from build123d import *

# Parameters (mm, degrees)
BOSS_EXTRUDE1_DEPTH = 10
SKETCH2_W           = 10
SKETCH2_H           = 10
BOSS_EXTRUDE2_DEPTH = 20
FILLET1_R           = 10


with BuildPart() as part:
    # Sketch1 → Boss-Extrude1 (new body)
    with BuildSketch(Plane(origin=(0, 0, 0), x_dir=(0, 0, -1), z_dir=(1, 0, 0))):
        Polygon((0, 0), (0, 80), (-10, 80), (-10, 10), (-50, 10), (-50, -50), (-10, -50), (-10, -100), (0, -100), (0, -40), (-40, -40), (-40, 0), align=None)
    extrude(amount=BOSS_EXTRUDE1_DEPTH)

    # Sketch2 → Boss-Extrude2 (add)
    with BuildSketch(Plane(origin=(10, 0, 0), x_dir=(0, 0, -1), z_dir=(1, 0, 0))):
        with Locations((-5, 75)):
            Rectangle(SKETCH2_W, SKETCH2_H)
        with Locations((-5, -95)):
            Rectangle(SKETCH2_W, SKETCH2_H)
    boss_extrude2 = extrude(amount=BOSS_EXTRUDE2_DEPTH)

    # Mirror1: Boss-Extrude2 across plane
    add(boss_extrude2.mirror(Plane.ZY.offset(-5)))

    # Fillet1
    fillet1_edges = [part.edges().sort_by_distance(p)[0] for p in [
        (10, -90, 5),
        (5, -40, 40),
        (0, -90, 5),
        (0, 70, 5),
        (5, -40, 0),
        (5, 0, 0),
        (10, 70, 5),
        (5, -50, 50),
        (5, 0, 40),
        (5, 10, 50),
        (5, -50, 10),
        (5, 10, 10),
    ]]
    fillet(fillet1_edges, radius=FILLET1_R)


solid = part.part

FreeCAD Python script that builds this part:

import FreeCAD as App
import Part
import Sketcher
from FreeCAD import Vector


def edges_at(feature, points):
    """Names of the edges that pass closest to the given points."""
    edges = feature.Shape.Edges
    near = lambda p: min(range(len(edges)), key=lambda i: edges[i].distToShape(Part.Vertex(*p))[0])
    return sorted({f"Edge{near(p) + 1}" for p in points})


def add_polygon(sketch, points):
    """Adds a closed chain of lines whose ends are joined by coincident constraints."""
    first, n = sketch.GeometryCount, len(points)
    for a, b in zip(points, points[1:] + points[:1]):
        sketch.addGeometry(Part.LineSegment(App.Vector(*a, 0), App.Vector(*b, 0)), False)
    for i in range(n):
        sketch.addConstraint(Sketcher.Constraint("Coincident", first + i, 2, first + (i + 1) % n, 1))

doc = App.newDocument("Part")
params = doc.addObject("Spreadsheet::Sheet", "Params")
for row, (alias, value) in enumerate([
    ("sketch1_width", "80 mm"),
    ("sketch1_width2", "70 mm"),
    ("sketch1_width3", "60 mm"),
    ("sketch1_width4", "50 mm"),
    ("sketch1_height", "10 mm"),
    ("pad1_length", "10 mm"),
    ("sketch2_width", "10 mm"),
    ("pad2_length", "20 mm"),
    ("fillet_radius", "10 mm"),
], start=1):
    params.set(f"A{row}", alias)
    params.set(f"B{row}", "=" + value)
    params.setAlias(f"B{row}", alias)

body = doc.addObject("PartDesign::Body", "Body")

sketch1 = body.newObject("Sketcher::SketchObject", "Sketch")
sketch1.AttachmentSupport = (doc.getObject("YZ_Plane"), [""])
sketch1.MapMode = "FlatFace"
add_polygon(sketch1, [(0, 0), (80, 0), (80, 10), (10, 10), (10, 50), (-50, 50), (-50, 10), (-100, 10), (-100, 0), (-40, 0), (-40, 40), (0, 40)])
sketch1.addConstraint([
    Sketcher.Constraint("Horizontal", 0),
    Sketcher.Constraint("Vertical", 1),
    Sketcher.Constraint("Horizontal", 2),
    Sketcher.Constraint("Vertical", 3),
    Sketcher.Constraint("Horizontal", 4),
    Sketcher.Constraint("Vertical", 5),
    Sketcher.Constraint("Horizontal", 6),
    Sketcher.Constraint("Vertical", 7),
    Sketcher.Constraint("Horizontal", 8),
    Sketcher.Constraint("Vertical", 9),
    Sketcher.Constraint("Horizontal", 10),
    Sketcher.Constraint("Vertical", 11),
    Sketcher.Constraint("Coincident", 11, 2, -1, 1),
    Sketcher.Constraint("PointOnObject", 7, 2, -1),
    Sketcher.Constraint("Horizontal", 2, 2, 5, 2),
    Sketcher.Constraint("Equal", 4, 8),
    Sketcher.Constraint("Equal", 10, 3),
    Sketcher.Constraint("Equal", 5, 9),
    Sketcher.Constraint("DistanceX", 0, 1, 0, 2, 80.0),
    Sketcher.Constraint("DistanceX", 2, 2, 2, 1, 70.0),
    Sketcher.Constraint("DistanceX", 4, 2, 4, 1, 60.0),
    Sketcher.Constraint("DistanceX", 6, 2, 6, 1, 50.0),
    Sketcher.Constraint("DistanceY", 1, 1, 1, 2, 10.0),
])
sketch1.setExpression("Constraints[30]", "Params.sketch1_width")
sketch1.setExpression("Constraints[31]", "Params.sketch1_width2")
sketch1.setExpression("Constraints[32]", "Params.sketch1_width3")
sketch1.setExpression("Constraints[33]", "Params.sketch1_width4")
sketch1.setExpression("Constraints[34]", "Params.sketch1_height")
pad1 = body.newObject("PartDesign::Pad", "Pad")
pad1.Profile = sketch1
pad1.setExpression("Length", "Params.pad1_length")

sketch2 = body.newObject("Sketcher::SketchObject", "Sketch001")
sketch2.AttachmentSupport = (doc.getObject("YZ_Plane"), [""])
sketch2.MapMode = "FlatFace"
sketch2.AttachmentOffset = App.Placement(Vector(0, 0, 10), App.Rotation())
add_polygon(sketch2, [(80, 10), (70, 10), (70, 0), (80, 0)])
add_polygon(sketch2, [(-90, 10), (-100, 10), (-100, 0), (-90, 0)])
sketch2.addConstraint([
    Sketcher.Constraint("Horizontal", 0),
    Sketcher.Constraint("Vertical", 1),
    Sketcher.Constraint("Horizontal", 2),
    Sketcher.Constraint("Vertical", 3),
    Sketcher.Constraint("Horizontal", 4),
    Sketcher.Constraint("Vertical", 5),
    Sketcher.Constraint("Horizontal", 6),
    Sketcher.Constraint("Vertical", 7),
    Sketcher.Constraint("PointOnObject", 1, 2, -1),
    Sketcher.Constraint("PointOnObject", 5, 2, -1),
    Sketcher.Constraint("Horizontal", 3, 2, 4, 2),
    Sketcher.Constraint("Equal", 2, 4),
    Sketcher.Constraint("Equal", 6, 1),
    Sketcher.Constraint("DistanceX", 0, 2, 0, 1, 10.0),
    Sketcher.Constraint("DistanceX", -1, 1, 0, 2, 70.0),
    Sketcher.Constraint("DistanceX", 4, 2, -1, 1, 100.0),
])
sketch2.setExpression("Constraints[21]", "Params.sketch2_width")
pad2 = body.newObject("PartDesign::Pad", "Pad001")
pad2.Profile = sketch2
pad2.setExpression("Length", "Params.pad2_length")
doc.recompute()

datumplane = body.newObject("PartDesign::Plane", "DatumPlane")
datumplane.AttachmentSupport = (doc.getObject("YZ_Plane"), [""])
datumplane.MapMode = "FlatFace"
datumplane.AttachmentOffset = App.Placement(Vector(0, 0, 5), App.Rotation())
mirrored = body.newObject("PartDesign::Mirrored", "Mirrored")
mirrored.Originals = [pad2]
mirrored.MirrorPlane = (datumplane, [""])
body.Tip = mirrored
doc.recompute()

fillet = body.newObject("PartDesign::Fillet", "Fillet")
fillet.Base = (mirrored, edges_at(mirrored, [
    (10, -90, 5),
    (5, -40, 40),
    (0, -90, 5),
    (0, 70, 5),
    (5, -40, 0),
    (5, 0, 0),
    (10, 70, 5),
    (5, -50, 50),
    (5, 0, 40),
    (5, 10, 50),
    (5, -50, 10),
    (5, 10, 10),
]))
fillet.setExpression("Radius", "Params.fillet_radius")

doc.recompute()
